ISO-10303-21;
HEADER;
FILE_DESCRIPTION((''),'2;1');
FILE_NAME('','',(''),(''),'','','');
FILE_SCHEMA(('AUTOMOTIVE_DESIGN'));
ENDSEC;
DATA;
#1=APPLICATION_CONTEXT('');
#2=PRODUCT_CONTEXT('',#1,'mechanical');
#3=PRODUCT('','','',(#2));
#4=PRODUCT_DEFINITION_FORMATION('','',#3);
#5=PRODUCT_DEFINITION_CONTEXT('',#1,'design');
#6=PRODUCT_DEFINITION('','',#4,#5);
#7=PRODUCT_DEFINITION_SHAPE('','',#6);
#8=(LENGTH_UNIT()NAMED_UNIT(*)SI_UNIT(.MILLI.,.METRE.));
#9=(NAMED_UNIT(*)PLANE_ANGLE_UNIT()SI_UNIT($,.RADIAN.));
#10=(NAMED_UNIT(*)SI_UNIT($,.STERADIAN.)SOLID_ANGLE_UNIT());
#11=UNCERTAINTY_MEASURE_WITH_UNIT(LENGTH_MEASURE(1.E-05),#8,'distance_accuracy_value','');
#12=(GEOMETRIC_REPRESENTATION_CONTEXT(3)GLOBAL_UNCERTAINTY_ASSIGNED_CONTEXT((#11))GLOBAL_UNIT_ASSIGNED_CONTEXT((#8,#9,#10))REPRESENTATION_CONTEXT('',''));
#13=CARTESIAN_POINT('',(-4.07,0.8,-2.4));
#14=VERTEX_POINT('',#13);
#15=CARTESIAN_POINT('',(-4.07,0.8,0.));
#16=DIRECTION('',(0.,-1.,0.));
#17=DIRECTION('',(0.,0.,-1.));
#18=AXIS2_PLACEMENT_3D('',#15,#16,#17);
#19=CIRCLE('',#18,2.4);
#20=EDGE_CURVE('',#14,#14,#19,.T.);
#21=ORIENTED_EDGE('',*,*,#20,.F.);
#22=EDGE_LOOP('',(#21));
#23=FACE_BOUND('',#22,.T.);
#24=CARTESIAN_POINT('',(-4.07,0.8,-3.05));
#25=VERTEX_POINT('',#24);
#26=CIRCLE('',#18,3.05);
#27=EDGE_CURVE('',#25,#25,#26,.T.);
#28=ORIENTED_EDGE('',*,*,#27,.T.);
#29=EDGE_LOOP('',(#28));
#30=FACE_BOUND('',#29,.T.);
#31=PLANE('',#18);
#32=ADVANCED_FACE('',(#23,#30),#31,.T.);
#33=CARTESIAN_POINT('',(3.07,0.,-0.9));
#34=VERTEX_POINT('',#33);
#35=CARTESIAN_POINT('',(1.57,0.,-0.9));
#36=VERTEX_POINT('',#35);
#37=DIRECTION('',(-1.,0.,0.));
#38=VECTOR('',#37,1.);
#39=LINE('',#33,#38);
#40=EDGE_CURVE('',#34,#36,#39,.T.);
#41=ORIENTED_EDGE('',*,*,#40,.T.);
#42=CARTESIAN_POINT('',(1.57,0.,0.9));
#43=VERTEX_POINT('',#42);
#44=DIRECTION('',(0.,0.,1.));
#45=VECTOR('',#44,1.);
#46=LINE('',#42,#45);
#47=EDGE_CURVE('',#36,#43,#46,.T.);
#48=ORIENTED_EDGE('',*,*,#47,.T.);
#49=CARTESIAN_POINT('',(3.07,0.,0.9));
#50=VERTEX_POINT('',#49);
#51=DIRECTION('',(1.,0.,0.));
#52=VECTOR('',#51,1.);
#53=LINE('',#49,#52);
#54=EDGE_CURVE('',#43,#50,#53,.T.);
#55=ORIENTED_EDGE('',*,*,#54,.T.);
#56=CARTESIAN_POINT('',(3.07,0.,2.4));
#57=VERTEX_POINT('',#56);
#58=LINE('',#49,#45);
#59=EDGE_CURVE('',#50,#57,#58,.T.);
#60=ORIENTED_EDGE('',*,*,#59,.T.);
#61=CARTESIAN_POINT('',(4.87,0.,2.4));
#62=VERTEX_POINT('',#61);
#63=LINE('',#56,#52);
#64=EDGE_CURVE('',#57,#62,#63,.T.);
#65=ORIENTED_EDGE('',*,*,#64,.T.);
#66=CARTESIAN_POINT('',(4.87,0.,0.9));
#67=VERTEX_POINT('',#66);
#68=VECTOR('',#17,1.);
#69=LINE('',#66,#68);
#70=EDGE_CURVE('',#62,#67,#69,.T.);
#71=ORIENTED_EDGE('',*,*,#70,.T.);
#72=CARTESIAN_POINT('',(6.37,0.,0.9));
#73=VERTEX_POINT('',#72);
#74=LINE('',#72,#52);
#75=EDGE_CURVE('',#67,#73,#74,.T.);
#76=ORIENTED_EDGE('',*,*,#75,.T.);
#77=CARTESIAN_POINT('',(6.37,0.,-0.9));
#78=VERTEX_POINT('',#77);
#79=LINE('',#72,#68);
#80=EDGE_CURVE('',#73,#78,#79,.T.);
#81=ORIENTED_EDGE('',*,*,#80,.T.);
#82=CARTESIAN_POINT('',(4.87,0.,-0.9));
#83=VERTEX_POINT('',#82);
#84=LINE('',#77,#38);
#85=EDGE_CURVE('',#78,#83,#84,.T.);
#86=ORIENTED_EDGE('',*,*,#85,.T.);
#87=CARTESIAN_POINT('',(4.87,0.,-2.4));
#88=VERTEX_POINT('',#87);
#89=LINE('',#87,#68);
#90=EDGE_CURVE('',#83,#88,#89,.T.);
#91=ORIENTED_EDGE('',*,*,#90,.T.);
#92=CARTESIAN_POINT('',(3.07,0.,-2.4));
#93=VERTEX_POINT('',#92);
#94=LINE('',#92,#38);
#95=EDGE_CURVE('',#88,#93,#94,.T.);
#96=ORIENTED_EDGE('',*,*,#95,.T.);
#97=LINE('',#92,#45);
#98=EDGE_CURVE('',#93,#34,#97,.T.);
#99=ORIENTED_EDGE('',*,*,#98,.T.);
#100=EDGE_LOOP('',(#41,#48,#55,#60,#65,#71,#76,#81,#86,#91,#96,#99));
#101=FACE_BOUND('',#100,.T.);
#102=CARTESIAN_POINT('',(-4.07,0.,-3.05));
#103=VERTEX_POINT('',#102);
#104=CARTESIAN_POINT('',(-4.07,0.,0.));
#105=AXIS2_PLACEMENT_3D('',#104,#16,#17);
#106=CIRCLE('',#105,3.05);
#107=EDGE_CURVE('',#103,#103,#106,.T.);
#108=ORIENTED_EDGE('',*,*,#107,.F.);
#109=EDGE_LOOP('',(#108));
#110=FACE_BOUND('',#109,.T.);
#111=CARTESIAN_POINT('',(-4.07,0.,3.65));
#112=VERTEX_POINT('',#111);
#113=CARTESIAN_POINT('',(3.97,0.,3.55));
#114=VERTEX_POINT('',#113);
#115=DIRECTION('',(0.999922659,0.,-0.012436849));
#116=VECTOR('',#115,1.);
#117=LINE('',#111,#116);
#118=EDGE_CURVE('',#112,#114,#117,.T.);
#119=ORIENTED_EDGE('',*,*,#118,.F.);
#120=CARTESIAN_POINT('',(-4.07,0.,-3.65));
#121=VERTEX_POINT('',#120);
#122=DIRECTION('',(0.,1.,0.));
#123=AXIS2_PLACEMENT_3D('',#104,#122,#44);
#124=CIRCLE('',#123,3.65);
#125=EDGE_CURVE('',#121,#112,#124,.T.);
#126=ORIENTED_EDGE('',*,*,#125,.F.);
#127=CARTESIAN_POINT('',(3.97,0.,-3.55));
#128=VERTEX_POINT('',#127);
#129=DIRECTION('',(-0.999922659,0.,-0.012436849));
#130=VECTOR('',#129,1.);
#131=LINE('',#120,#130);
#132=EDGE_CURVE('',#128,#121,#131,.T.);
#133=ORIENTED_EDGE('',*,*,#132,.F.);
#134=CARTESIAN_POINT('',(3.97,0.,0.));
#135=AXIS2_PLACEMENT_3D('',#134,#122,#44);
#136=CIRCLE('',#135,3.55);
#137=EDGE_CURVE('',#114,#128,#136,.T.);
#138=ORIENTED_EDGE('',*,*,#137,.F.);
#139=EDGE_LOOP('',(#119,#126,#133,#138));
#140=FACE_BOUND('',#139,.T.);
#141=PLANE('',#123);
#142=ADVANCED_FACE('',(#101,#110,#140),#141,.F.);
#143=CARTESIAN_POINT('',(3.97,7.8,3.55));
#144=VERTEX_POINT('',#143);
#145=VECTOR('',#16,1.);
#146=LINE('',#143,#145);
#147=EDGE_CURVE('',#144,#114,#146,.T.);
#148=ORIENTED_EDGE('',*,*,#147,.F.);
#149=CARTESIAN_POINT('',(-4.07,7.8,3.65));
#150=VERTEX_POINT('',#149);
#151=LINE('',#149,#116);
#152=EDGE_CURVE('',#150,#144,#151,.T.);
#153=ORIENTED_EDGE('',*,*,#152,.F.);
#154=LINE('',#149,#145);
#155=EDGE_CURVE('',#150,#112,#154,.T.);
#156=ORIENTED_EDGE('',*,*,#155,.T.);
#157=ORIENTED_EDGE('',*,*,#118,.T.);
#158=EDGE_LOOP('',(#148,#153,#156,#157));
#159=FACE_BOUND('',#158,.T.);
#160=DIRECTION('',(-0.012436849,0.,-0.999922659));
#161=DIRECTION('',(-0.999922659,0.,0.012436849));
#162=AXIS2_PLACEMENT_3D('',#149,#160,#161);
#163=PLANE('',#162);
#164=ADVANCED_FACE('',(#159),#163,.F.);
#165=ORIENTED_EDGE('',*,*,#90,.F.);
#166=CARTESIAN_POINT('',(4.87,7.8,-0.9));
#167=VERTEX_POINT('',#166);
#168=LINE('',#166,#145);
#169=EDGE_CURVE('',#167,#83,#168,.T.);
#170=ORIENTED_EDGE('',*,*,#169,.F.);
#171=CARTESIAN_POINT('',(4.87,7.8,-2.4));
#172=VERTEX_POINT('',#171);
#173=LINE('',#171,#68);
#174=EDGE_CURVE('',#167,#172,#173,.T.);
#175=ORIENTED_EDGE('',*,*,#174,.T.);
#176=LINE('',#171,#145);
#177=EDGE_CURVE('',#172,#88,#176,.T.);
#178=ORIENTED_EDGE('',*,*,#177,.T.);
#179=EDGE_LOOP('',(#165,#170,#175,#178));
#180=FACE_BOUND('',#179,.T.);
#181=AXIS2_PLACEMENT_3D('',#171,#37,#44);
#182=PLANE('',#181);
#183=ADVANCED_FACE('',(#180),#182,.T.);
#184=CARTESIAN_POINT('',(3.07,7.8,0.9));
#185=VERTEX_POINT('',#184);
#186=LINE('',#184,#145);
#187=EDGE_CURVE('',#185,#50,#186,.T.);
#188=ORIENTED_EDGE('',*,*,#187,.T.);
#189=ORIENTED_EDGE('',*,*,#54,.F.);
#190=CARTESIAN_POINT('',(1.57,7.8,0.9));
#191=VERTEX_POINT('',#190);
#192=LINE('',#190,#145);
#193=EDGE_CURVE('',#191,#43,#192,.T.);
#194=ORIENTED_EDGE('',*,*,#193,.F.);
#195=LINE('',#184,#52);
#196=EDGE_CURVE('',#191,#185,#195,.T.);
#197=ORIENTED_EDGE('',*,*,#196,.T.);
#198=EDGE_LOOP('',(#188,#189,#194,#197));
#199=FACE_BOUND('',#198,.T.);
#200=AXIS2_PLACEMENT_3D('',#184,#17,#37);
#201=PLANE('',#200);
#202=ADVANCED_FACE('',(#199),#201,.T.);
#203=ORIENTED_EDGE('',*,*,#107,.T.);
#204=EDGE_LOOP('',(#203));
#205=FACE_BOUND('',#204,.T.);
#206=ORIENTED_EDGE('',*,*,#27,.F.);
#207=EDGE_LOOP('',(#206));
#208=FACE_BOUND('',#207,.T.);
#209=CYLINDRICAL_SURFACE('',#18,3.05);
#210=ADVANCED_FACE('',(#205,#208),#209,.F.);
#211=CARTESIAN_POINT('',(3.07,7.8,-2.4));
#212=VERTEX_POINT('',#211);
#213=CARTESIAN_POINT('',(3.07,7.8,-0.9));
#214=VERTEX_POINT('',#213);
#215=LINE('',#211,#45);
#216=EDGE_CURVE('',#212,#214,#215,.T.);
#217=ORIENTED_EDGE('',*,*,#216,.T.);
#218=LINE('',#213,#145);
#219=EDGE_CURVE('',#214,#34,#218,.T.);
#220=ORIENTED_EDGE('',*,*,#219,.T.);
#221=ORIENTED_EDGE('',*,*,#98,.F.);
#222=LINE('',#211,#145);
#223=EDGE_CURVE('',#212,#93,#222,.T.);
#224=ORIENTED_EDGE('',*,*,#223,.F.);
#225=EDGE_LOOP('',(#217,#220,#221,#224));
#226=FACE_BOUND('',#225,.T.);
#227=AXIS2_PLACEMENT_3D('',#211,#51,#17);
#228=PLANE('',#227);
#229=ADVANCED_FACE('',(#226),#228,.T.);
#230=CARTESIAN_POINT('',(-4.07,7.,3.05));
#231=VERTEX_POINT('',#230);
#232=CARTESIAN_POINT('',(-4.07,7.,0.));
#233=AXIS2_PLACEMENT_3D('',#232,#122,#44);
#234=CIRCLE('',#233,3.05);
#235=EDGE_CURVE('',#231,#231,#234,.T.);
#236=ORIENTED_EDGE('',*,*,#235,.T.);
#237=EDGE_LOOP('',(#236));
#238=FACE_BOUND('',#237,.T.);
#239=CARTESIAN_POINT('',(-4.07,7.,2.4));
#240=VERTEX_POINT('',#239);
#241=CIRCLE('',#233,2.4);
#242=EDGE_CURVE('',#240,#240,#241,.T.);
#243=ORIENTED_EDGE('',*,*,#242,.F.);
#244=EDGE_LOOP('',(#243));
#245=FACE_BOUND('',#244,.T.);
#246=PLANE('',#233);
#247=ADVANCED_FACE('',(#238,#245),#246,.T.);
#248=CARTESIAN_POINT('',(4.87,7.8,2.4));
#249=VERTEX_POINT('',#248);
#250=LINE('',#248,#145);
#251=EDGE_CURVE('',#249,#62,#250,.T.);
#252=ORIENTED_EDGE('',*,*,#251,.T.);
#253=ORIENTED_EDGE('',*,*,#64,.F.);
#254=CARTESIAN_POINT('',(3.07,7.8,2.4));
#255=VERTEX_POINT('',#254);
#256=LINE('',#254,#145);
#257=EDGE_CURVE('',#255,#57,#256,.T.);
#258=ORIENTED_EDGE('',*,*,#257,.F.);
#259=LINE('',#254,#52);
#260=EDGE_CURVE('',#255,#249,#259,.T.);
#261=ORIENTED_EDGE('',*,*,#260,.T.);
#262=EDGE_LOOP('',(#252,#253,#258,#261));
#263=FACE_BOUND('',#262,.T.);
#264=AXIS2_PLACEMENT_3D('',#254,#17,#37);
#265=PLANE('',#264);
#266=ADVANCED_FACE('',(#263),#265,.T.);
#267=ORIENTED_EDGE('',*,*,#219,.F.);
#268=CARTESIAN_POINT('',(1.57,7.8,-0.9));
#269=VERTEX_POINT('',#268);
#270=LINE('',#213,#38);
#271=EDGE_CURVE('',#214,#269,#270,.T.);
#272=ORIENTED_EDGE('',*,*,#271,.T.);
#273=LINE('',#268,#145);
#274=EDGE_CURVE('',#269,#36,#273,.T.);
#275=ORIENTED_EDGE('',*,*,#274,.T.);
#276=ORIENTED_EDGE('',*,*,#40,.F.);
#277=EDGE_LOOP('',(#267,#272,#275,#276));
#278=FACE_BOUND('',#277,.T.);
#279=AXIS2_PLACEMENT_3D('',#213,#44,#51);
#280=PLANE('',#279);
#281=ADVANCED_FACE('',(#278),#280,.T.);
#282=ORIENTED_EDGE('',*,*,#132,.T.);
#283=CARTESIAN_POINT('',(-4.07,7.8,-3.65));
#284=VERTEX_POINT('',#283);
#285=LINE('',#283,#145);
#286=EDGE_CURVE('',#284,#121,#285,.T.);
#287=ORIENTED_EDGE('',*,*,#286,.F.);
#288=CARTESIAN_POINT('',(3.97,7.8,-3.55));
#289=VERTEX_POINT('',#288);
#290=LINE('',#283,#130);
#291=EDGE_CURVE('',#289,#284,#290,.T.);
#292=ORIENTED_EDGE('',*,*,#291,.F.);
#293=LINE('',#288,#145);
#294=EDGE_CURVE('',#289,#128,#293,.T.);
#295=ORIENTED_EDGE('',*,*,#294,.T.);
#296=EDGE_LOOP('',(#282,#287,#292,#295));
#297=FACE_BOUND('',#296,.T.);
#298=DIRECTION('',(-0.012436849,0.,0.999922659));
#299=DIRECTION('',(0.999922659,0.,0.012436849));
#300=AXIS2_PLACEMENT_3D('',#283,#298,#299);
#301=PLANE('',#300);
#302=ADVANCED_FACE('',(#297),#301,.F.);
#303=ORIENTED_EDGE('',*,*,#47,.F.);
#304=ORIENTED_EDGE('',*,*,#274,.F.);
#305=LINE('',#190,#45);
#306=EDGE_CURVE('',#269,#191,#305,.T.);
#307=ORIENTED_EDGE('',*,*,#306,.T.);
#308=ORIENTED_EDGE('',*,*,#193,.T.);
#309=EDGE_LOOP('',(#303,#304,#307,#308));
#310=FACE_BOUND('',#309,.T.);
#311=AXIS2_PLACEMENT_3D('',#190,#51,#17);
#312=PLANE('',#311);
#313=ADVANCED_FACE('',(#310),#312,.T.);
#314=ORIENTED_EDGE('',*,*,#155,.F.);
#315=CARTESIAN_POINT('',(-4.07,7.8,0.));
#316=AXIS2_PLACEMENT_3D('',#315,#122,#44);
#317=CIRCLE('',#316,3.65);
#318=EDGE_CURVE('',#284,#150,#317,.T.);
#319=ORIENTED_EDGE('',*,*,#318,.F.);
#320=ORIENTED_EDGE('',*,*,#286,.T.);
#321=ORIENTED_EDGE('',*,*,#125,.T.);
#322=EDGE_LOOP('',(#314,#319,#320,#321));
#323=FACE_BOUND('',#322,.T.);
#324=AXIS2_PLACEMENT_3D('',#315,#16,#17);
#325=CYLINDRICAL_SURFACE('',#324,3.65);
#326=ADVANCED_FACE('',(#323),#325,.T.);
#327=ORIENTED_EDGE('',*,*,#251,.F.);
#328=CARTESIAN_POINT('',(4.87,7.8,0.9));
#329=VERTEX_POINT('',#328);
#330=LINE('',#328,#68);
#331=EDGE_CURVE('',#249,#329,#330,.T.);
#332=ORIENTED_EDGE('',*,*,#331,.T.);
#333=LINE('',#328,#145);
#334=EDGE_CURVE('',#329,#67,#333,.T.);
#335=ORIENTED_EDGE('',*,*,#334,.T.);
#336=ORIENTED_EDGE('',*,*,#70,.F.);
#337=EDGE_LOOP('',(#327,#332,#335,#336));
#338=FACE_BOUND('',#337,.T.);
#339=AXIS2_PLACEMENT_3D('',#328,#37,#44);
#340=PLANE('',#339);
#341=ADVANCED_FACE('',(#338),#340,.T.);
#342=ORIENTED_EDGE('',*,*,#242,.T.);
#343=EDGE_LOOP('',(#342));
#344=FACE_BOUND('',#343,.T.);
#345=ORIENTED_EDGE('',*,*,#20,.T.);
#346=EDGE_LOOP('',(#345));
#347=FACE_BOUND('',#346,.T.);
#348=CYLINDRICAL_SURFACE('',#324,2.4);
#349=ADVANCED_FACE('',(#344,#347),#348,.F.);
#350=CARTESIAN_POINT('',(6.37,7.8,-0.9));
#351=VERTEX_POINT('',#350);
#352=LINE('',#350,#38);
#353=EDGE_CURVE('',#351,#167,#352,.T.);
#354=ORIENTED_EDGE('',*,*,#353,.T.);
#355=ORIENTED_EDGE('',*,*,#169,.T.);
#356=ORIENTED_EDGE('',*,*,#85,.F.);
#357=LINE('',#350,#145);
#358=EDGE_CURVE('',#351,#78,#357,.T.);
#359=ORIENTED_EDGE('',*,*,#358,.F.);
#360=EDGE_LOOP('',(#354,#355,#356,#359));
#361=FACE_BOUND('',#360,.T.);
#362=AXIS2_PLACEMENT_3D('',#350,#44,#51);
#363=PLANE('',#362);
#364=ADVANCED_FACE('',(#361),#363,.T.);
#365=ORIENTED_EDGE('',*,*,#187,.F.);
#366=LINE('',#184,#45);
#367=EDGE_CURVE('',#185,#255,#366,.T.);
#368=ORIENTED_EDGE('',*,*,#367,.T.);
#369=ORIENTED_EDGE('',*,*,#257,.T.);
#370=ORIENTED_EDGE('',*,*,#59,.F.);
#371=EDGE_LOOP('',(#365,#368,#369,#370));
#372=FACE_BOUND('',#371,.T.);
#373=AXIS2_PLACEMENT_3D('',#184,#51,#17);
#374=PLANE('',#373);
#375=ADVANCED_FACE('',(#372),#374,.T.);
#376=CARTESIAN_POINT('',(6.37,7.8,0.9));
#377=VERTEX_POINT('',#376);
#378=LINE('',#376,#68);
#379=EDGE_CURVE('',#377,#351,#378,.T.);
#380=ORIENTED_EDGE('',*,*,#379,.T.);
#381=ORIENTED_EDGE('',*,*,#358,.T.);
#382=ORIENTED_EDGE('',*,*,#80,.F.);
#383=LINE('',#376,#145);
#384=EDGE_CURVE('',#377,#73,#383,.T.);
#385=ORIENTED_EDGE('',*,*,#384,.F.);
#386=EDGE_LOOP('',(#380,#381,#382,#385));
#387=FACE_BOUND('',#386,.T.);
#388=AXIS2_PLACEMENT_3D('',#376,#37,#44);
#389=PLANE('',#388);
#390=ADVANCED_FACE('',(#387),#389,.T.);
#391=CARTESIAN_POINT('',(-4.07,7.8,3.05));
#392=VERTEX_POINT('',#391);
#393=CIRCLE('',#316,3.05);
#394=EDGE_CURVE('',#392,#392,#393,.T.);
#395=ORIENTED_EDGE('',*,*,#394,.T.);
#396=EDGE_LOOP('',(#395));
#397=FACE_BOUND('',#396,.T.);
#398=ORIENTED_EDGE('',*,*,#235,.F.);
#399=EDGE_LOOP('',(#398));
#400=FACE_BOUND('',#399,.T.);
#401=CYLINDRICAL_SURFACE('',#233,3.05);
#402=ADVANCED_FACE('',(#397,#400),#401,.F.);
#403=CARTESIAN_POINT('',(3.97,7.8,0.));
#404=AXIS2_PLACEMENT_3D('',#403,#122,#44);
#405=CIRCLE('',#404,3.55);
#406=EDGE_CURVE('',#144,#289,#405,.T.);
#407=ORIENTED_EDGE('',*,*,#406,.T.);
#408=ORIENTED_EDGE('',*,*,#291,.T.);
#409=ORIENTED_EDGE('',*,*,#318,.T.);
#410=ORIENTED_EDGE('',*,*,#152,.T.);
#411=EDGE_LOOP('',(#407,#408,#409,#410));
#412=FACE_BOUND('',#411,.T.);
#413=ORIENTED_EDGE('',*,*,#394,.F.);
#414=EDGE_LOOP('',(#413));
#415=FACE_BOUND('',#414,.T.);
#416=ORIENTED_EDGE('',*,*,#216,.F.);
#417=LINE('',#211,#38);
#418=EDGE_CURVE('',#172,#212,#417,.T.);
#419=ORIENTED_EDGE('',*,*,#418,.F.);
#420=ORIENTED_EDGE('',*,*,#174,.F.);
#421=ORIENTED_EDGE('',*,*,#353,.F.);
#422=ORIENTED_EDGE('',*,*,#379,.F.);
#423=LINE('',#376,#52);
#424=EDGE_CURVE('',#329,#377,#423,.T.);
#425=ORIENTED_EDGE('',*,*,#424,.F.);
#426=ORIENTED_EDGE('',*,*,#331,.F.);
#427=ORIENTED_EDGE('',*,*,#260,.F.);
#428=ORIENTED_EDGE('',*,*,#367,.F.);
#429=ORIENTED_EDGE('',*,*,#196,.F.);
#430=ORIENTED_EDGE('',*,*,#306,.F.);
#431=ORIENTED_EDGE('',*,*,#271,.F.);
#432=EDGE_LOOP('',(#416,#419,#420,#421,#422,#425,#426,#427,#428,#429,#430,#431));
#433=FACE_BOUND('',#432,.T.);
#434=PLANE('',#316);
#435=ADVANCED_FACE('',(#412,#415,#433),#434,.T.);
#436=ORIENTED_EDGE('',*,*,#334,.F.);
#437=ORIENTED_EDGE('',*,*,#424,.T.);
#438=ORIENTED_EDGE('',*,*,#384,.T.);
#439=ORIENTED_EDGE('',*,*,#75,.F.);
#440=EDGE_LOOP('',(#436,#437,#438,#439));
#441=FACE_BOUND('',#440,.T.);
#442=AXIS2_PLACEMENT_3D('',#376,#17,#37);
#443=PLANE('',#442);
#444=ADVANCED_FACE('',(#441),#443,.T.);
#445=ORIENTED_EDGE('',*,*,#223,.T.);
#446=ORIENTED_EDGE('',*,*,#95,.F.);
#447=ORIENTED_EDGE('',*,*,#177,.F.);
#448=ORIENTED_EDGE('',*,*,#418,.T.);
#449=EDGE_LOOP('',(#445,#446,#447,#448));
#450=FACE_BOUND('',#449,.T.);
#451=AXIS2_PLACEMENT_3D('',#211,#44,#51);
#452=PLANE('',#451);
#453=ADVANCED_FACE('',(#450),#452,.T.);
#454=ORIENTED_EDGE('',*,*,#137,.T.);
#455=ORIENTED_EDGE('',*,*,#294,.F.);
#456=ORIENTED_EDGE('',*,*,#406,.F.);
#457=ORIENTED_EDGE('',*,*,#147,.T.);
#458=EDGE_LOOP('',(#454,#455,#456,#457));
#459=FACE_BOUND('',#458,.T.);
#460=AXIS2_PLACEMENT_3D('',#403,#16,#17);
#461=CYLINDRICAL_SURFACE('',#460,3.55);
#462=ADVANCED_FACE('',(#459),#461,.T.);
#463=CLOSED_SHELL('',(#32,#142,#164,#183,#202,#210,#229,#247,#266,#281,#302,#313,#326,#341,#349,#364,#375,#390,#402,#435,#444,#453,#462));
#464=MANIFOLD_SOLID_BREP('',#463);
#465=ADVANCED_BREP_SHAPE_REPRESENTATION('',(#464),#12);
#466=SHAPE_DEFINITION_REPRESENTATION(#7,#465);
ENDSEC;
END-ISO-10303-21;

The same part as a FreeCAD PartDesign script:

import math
import FreeCAD as App
import Part
import Sketcher

V = App.Vector
Q = App.Units.Quantity

doc = App.newDocument("Part")
body = doc.addObject("PartDesign::Body", "Body")

# Sketch on XZ plane
sketch1 = doc.addObject("Sketcher::SketchObject", "Sketch")
body.addObject(sketch1)
sketch1.AttachmentSupport = (doc.XZ_Plane, [""])
sketch1.MapMode = "FlatFace"
sketch1.addGeometry([
    Part.LineSegment(V(3.97, -3.55, 0), V(-4.07, -3.65, 0)),  # 0
    Part.ArcOfCircle(Part.Circle(V(-4.07, 0, 0), V(0, 0, 1), 3.65), math.radians(90), math.radians(270)),  # 1
    Part.LineSegment(V(-4.07, 3.65, 0), V(3.97, 3.55, 0)),  # 2
    Part.ArcOfCircle(Part.Circle(V(3.97, 0, 0), V(0, 0, 1), 3.55), math.radians(-90), math.radians(90)),  # 3
    Part.Circle(V(-4.07, 0, 0), V(0, 0, 1), 2.4),  # 4
    Part.LineSegment(V(3.07, -2.4, 0), V(4.87, -2.4, 0)),  # 5
    Part.LineSegment(V(4.87, -2.4, 0), V(4.87, -0.9, 0)),  # 6
    Part.LineSegment(V(4.87, -0.9, 0), V(6.37, -0.9, 0)),  # 7
    Part.LineSegment(V(6.37, -0.9, 0), V(6.37, 0.9, 0)),  # 8
    Part.LineSegment(V(6.37, 0.9, 0), V(4.87, 0.9, 0)),  # 9
    Part.LineSegment(V(4.87, 0.9, 0), V(4.87, 2.4, 0)),  # 10
    Part.LineSegment(V(4.87, 2.4, 0), V(3.07, 2.4, 0)),  # 11
    Part.LineSegment(V(3.07, 2.4, 0), V(3.07, 0.9, 0)),  # 12
    Part.LineSegment(V(3.07, 0.9, 0), V(1.57, 0.9, 0)),  # 13
    Part.LineSegment(V(1.57, 0.9, 0), V(1.57, -0.9, 0)),  # 14
    Part.LineSegment(V(1.57, -0.9, 0), V(3.07, -0.9, 0)),  # 15
    Part.LineSegment(V(3.07, -0.9, 0), V(3.07, -2.4, 0)),  # 16
], False)
sketch1.addConstraint([
    Sketcher.Constraint("Coincident", 0, 2, 1, 2),
    Sketcher.Constraint("Coincident", 1, 1, 2, 1),
    Sketcher.Constraint("Coincident", 2, 2, 3, 2),
    Sketcher.Constraint("Coincident", 3, 1, 0, 1),
    Sketcher.Constraint("Coincident", 5, 2, 6, 1),
    Sketcher.Constraint("Coincident", 6, 2, 7, 1),
    Sketcher.Constraint("Coincident", 7, 2, 8, 1),
    Sketcher.Constraint("Coincident", 8, 2, 9, 1),
    Sketcher.Constraint("Coincident", 9, 2, 10, 1),
    Sketcher.Constraint("Coincident", 10, 2, 11, 1),
    Sketcher.Constraint("Coincident", 11, 2, 12, 1),
    Sketcher.Constraint("Coincident", 12, 2, 13, 1),
    Sketcher.Constraint("Coincident", 13, 2, 14, 1),
    Sketcher.Constraint("Coincident", 14, 2, 15, 1),
    Sketcher.Constraint("Coincident", 15, 2, 16, 1),
    Sketcher.Constraint("Coincident", 16, 2, 5, 1),
    Sketcher.Constraint("Horizontal", 5),
    Sketcher.Constraint("Vertical", 6),
    Sketcher.Constraint("Horizontal", 7),
    Sketcher.Constraint("Vertical", 8),
    Sketcher.Constraint("Horizontal", 9),
    Sketcher.Constraint("Vertical", 10),
    Sketcher.Constraint("Horizontal", 11),
    Sketcher.Constraint("Vertical", 12),
    Sketcher.Constraint("Horizontal", 13),
    Sketcher.Constraint("Vertical", 14),
    Sketcher.Constraint("Horizontal", 15),
    Sketcher.Constraint("Vertical", 16),
    Sketcher.Constraint("Coincident", 4, 3, 1, 3),
    Sketcher.Constraint("Symmetric", 0, 2, 1, 1, -1),
    Sketcher.Constraint("Symmetric", 2, 2, 3, 1, -1),
    Sketcher.Constraint("Symmetric", 6, 2, 9, 2, -1),
    Sketcher.Constraint("Symmetric", 12, 2, 15, 2, -1),
    Sketcher.Constraint("Horizontal", 9, 2, 12, 2),
    Sketcher.Constraint("Vertical", 4, 3, 0, 2),
    Sketcher.Constraint("Vertical", 3, 3, 2, 2),
    Sketcher.Constraint("Equal", 9, 13),
    Sketcher.Constraint("Equal", 15, 6),
    Sketcher.Constraint("Equal", 11, 8),
    Sketcher.Constraint("Equal", 6, 10),
    Sketcher.Constraint("Diameter", 4, Q("4.8 mm")),
    Sketcher.Constraint("Radius", 1, Q("3.65 mm")),
    Sketcher.Constraint("Radius", 3, Q("3.55 mm")),
    Sketcher.Constraint("DistanceX", 5, 1, 5, 2, Q("1.8 mm")),
    Sketcher.Constraint("DistanceX", 7, 1, 7, 2, Q("1.5 mm")),
    Sketcher.Constraint("DistanceX", 3, 1, 5, 2, Q("0.9 mm")),
    Sketcher.Constraint("DistanceX", 1, 3, -1, 1, Q("4.07 mm")),
    Sketcher.Constraint("DistanceX", -1, 1, 3, 3, Q("3.97 mm")),
])
pad1 = doc.addObject("PartDesign::Pad", "Pad")
body.addObject(pad1)
pad1.Profile = sketch1
pad1.Length = 7.8
pad1.Reversed = True

# Sketch on XZ plane
sketch2 = doc.addObject("Sketcher::SketchObject", "Sketch001")
body.addObject(sketch2)
sketch2.AttachmentSupport = (doc.XZ_Plane, [""])
sketch2.MapMode = "FlatFace"
sketch2.AttachmentOffset = App.Placement(V(0, 0, -7.8), App.Rotation())
sketch2.addGeometry(Part.Circle(V(-4.07, 0, 0), V(0, 0, 1), 3.05), False)
sketch2.addConstraint([
    Sketcher.Constraint("PointOnObject", 0, 3, -1),
    Sketcher.Constraint("Diameter", 0, Q("6.1 mm")),
    Sketcher.Constraint("DistanceX", 0, 3, -1, 1, Q("4.07 mm")),
])
pocket1 = doc.addObject("PartDesign::Pocket", "Pocket")
body.addObject(pocket1)
pocket1.Profile = sketch2
pocket1.Length = 0.8
pocket1.Reversed = True

# Sketch on XZ plane
sketch3 = doc.addObject("Sketcher::SketchObject", "Sketch002")
body.addObject(sketch3)
sketch3.AttachmentSupport = (doc.XZ_Plane, [""])
sketch3.MapMode = "FlatFace"
sketch3.addGeometry(Part.Circle(V(-4.07, 0, 0), V(0, 0, 1), 3.05), False)
sketch3.addConstraint([
    Sketcher.Constraint("PointOnObject", 0, 3, -1),
    Sketcher.Constraint("Diameter", 0, Q("6.1 mm")),
    Sketcher.Constraint("DistanceX", 0, 3, -1, 1, Q("4.07 mm")),
])
pocket2 = doc.addObject("PartDesign::Pocket", "Pocket001")
body.addObject(pocket2)
pocket2.Profile = sketch3
pocket2.Length = 0.8

doc.recompute()
